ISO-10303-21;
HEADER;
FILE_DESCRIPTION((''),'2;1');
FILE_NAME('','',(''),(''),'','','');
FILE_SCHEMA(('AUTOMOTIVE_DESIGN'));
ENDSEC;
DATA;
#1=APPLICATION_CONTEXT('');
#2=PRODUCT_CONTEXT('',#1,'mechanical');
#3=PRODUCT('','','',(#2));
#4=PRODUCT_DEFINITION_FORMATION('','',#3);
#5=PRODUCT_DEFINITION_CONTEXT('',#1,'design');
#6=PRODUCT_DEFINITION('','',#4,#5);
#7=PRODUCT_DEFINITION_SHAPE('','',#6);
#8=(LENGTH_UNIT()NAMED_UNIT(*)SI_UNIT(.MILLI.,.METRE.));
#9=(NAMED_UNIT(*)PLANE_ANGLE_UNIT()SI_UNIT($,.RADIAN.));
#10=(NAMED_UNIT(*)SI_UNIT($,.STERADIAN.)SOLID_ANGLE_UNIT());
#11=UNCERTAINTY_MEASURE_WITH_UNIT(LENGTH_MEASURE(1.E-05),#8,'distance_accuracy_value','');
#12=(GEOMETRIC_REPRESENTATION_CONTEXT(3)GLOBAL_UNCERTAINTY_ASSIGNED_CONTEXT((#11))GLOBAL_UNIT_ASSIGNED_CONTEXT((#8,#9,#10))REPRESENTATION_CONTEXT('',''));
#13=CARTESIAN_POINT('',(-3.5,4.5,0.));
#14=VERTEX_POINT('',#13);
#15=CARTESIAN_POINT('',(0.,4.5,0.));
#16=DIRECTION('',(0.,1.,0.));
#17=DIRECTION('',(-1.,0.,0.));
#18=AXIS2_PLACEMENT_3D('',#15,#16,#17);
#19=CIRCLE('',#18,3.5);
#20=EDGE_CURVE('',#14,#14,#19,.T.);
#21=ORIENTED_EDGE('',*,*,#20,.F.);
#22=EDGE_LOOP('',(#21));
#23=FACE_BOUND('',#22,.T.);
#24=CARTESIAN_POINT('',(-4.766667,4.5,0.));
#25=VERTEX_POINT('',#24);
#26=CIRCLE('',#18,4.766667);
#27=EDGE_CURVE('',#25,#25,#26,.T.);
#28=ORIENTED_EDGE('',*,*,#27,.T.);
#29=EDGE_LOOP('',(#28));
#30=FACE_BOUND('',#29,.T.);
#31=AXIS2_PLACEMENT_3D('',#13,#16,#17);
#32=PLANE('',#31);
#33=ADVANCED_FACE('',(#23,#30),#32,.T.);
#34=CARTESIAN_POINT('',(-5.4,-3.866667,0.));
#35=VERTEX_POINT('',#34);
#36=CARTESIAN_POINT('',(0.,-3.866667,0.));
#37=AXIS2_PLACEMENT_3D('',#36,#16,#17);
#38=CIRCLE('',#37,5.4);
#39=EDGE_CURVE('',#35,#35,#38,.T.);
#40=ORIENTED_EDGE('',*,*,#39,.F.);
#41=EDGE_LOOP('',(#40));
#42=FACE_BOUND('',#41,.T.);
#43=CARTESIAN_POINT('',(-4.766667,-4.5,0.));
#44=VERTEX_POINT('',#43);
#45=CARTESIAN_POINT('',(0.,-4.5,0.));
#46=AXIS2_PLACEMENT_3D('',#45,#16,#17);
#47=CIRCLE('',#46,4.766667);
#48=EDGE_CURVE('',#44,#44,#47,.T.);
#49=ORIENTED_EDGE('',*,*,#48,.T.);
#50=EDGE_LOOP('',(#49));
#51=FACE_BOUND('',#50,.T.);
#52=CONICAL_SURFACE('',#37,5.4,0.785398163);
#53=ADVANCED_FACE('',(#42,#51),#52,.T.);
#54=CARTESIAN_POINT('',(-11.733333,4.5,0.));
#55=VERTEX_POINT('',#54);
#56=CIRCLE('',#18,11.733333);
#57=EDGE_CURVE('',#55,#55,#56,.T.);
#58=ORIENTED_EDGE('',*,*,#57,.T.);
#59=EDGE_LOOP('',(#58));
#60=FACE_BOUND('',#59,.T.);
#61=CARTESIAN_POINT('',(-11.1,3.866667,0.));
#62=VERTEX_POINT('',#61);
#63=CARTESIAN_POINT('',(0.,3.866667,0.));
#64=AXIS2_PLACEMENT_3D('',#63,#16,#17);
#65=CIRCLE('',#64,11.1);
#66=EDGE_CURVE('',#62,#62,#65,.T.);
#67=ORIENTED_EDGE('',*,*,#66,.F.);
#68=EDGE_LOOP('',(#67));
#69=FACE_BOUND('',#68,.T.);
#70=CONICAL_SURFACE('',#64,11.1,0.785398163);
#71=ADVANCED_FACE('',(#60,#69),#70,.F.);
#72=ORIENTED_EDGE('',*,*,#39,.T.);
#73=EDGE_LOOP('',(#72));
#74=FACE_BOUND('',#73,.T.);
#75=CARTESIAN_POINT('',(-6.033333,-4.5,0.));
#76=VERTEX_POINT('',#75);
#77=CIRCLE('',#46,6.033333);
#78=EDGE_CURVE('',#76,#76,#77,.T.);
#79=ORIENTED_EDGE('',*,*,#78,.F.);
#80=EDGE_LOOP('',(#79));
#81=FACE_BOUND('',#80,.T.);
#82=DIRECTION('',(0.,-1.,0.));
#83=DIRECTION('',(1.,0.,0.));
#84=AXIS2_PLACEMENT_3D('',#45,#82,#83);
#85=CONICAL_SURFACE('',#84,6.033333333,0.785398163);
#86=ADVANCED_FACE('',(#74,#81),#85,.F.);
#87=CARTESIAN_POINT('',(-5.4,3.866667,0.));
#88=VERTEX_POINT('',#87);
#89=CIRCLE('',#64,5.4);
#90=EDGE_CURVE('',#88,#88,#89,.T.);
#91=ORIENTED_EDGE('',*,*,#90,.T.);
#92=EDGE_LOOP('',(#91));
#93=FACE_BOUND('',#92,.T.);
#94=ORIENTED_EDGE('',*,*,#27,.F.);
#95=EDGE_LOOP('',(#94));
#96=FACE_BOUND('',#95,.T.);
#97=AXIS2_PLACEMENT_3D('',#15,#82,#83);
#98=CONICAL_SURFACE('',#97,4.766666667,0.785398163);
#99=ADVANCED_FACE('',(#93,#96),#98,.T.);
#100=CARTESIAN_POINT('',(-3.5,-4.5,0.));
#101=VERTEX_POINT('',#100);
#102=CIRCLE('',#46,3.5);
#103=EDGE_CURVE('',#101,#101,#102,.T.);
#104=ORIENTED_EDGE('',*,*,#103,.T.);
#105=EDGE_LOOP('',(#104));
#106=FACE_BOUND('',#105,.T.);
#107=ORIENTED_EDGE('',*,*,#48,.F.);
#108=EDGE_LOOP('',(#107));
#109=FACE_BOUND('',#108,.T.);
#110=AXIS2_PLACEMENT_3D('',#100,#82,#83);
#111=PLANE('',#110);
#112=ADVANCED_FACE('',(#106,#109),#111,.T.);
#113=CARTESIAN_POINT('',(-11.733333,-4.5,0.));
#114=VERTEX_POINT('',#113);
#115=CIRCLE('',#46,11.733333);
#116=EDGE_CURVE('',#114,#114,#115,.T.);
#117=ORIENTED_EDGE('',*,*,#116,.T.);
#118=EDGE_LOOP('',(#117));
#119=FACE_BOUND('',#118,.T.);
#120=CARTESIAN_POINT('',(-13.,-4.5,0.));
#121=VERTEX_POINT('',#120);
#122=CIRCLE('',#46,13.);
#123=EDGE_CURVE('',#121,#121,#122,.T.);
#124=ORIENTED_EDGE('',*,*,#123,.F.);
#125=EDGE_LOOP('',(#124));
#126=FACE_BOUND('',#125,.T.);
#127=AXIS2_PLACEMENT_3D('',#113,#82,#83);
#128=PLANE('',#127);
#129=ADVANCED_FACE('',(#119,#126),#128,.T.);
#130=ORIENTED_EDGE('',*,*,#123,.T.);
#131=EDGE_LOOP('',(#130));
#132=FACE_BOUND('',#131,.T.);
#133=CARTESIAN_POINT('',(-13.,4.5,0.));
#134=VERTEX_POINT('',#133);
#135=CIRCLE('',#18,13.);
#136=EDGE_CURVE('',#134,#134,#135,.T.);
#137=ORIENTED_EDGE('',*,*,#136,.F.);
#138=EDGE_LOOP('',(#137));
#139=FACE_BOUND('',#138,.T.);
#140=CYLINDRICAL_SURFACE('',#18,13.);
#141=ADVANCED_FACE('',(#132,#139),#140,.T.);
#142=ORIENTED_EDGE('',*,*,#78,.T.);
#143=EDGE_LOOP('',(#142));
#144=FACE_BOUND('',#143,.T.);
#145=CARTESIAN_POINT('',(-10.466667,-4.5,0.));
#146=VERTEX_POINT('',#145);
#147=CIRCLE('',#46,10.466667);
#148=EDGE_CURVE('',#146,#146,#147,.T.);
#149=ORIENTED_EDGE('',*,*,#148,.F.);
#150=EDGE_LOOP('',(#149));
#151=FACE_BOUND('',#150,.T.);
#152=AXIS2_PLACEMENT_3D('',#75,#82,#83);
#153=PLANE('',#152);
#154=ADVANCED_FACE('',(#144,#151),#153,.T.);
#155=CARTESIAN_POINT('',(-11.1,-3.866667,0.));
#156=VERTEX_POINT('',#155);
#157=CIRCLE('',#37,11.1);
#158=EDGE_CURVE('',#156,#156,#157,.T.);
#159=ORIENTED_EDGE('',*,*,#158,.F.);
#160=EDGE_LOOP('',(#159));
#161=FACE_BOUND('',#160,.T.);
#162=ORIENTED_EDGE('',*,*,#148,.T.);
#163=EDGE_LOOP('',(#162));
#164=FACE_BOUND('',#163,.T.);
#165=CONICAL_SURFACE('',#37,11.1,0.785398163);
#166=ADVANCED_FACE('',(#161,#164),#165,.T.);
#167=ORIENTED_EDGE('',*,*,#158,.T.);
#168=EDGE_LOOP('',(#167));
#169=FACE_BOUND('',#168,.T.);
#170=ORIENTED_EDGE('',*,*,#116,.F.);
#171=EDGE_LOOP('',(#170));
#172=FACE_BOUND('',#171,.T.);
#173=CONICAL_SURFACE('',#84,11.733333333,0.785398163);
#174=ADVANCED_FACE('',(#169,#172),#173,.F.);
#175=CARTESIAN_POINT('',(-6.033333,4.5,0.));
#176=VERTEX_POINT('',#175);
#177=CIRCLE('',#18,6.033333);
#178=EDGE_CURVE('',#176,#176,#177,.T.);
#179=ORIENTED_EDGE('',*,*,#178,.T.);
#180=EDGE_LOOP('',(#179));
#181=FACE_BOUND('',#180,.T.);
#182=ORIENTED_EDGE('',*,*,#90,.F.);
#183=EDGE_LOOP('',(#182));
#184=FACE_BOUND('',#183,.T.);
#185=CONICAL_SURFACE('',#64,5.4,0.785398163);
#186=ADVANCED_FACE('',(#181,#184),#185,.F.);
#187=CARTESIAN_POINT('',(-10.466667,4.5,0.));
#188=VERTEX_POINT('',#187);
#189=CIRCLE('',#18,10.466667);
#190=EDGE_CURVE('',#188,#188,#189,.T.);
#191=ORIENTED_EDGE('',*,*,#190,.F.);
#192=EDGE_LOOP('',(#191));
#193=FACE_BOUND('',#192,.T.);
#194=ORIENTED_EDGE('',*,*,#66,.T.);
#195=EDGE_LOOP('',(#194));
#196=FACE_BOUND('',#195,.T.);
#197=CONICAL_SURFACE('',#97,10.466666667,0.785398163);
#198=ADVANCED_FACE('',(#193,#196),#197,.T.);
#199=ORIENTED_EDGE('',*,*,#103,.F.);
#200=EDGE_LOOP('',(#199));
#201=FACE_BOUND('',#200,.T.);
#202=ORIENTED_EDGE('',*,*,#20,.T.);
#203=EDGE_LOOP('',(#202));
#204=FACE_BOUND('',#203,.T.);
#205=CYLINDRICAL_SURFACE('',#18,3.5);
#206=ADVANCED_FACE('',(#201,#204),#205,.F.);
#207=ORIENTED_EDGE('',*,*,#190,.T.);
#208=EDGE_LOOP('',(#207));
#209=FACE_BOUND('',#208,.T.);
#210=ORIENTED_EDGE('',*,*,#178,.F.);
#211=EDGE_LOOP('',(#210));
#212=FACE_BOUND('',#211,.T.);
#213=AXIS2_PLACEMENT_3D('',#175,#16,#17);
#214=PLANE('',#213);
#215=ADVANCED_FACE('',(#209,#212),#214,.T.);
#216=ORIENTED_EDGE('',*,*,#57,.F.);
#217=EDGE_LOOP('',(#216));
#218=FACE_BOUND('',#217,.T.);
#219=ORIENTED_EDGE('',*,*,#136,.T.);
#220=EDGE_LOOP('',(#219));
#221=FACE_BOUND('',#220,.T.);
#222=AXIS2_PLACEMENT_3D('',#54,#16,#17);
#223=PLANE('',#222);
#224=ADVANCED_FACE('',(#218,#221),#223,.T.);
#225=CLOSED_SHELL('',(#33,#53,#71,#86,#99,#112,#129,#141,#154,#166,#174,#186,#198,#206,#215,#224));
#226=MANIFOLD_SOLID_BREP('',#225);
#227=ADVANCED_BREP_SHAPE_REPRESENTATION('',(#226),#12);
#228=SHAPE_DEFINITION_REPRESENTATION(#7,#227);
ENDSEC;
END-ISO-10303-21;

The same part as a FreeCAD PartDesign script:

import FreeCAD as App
import Part
import Sketcher
from FreeCAD import Vector


def add_polygon(sketch, points):
    """Adds a closed chain of lines whose ends are joined by coincident constraints."""
    first, n = sketch.GeometryCount, len(points)
    for a, b in zip(points, points[1:] + points[:1]):
        sketch.addGeometry(Part.LineSegment(App.Vector(*a, 0), App.Vector(*b, 0)), False)
    for i in range(n):
        sketch.addConstraint(Sketcher.Constraint("Coincident", first + i, 2, first + (i + 1) % n, 1))

doc = App.newDocument("Part")
body = doc.addObject("PartDesign::Body", "Body")

# Sketch on XY plane
sketch1 = body.newObject("Sketcher::SketchObject", "Sketch")
sketch1.AttachmentSupport = (doc.getObject("XY_Plane"), [""])
sketch1.MapMode = "FlatFace"
add_polygon(sketch1, [(-3.5, 4.5), (-4.8, 4.5), (-5.4, 3.9), (-6, 4.5), (-10.5, 4.5), (-11.1, 3.9), (-11.7, 4.5), (-13, 4.5), (-13, -4.5), (-11.7, -4.5), (-11.1, -3.9), (-10.5, -4.5), (-6, -4.5), (-5.4, -3.9), (-4.8, -4.5), (-3.5, -4.5)])  # lines 0-15
sketch1.addConstraint([
    Sketcher.Constraint("Horizontal", 0),
    Sketcher.Constraint("Horizontal", 3),
    Sketcher.Constraint("Horizontal", 6),
    Sketcher.Constraint("Vertical", 7),
    Sketcher.Constraint("Horizontal", 8),
    Sketcher.Constraint("Horizontal", 11),
    Sketcher.Constraint("Horizontal", 14),
    Sketcher.Constraint("Vertical", 15),
    Sketcher.Constraint("Symmetric", 5, 2, 8, 2, -1),
    Sketcher.Constraint("Symmetric", 4, 2, 9, 2, -1),
    Sketcher.Constraint("Symmetric", 3, 2, 10, 2, -1),
    Sketcher.Constraint("Symmetric", 1, 2, 12, 2, -1),
    Sketcher.Constraint("Symmetric", 0, 2, 13, 2, -1),
    Sketcher.Constraint("Perpendicular", 1, 2),
    Sketcher.Constraint("Perpendicular", 2, 4),
    Sketcher.Constraint("Perpendicular", 4, 5),
    Sketcher.Constraint("Perpendicular", 5, 9),
    Sketcher.Constraint("Perpendicular", 10, 12),
    Sketcher.Constraint("Horizontal", 0, 2, 2, 2),
    Sketcher.Constraint("Horizontal", 1, 2, 4, 2),
    Sketcher.Constraint("Horizontal", 3, 2, 5, 2),
    Sketcher.Constraint("Equal", 0, 6),
    Sketcher.Constraint("DistanceY", 7, 2, 7, 1, 9.0),
    Sketcher.Constraint("DistanceX", 6, 2, -1, 1, 13.0),
    Sketcher.Constraint("DistanceX", 1, 2, -1, 1, 5.4),
    Sketcher.Constraint("DistanceX", 4, 2, -1, 1, 11.1),
    Sketcher.Constraint("Distance", 1, 0.895669),
])
revolution = body.newObject("PartDesign::Revolution", "Revolution")
revolution.Profile = sketch1
revolution.ReferenceAxis = (sketch1, ["V_Axis"])
revolution.Angle = 360

doc.recompute()
